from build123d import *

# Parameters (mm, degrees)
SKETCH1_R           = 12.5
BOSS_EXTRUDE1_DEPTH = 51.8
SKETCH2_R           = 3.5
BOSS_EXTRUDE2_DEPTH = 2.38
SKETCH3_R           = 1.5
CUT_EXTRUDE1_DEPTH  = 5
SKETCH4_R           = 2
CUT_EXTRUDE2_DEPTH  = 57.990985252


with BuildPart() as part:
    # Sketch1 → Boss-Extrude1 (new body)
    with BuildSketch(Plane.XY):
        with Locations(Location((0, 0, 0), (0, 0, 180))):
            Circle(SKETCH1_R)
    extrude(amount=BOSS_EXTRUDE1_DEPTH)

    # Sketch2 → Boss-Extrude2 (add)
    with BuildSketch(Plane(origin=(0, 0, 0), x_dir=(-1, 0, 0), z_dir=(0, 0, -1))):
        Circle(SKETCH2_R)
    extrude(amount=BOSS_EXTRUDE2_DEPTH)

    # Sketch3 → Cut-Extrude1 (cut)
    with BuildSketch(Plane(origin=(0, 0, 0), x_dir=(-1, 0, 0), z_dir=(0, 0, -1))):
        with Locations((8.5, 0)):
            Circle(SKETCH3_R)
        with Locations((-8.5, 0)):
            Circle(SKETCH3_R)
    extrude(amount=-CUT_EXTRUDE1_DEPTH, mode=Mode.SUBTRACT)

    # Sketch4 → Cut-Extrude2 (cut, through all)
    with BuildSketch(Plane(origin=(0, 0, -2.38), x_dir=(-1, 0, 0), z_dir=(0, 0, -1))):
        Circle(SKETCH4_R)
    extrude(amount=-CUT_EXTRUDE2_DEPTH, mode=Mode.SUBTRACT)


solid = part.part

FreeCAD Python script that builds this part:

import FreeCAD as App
import Part
import Sketcher
Q = App.Units.Quantity

doc = App.newDocument("Part")
body = doc.addObject("PartDesign::Body", "Body")

sketch1 = body.newObject("Sketcher::SketchObject", "Sketch")
sketch1.AttachmentSupport = (doc.getObject("XY_Plane"), [""])
sketch1.MapMode = "FlatFace"
sketch1.addGeometry(Part.Circle(App.Vector(0, 0, 0), App.Vector(0, 0, 1), 12), False)
sketch1.addConstraint([
    Sketcher.Constraint("Coincident", 0, 3, -1, 1),
    Sketcher.Constraint("Diameter", 0, Q("25 mm")),
])
pad1 = body.newObject("PartDesign::Pad", "Pad")
pad1.Profile = sketch1
pad1.Length = 51.8

sketch2 = body.newObject("Sketcher::SketchObject", "Sketch001")
sketch2.AttachmentSupport = (doc.getObject("XY_Plane"), [""])
sketch2.MapMode = "FlatFace"
sketch2.addGeometry(Part.Circle(App.Vector(0, 0, 0), App.Vector(0, 0, 1), 3.5), False)
sketch2.addConstraint([
    Sketcher.Constraint("Coincident", 0, 3, -1, 1),
    Sketcher.Constraint("Diameter", 0, Q("7 mm")),
])
pad2 = body.newObject("PartDesign::Pad", "Pad001")
pad2.Profile = sketch2
pad2.Length = 2.38
pad2.Reversed = True

sketch3 = body.newObject("Sketcher::SketchObject", "Sketch002")
sketch3.AttachmentSupport = (doc.getObject("XY_Plane"), [""])
sketch3.MapMode = "FlatFace"
sketch3.addGeometry([
    Part.Circle(App.Vector(-8.5, 0, 0), App.Vector(0, 0, 1), 1.5),
    Part.Circle(App.Vector(8.5, 0, 0), App.Vector(0, 0, 1), 1.5),
], False)
sketch3.addConstraint([
    Sketcher.Constraint("Equal", 0, 1),
    Sketcher.Constraint("Symmetric", 0, 3, 1, 3, -1, 1),
    Sketcher.Constraint("PointOnObject", 0, 3, -1),
    Sketcher.Constraint("Diameter", 0, Q("3 mm")),
    Sketcher.Constraint("DistanceX", 0, 3, 1, 3, Q("17 mm")),
])
pocket1 = body.newObject("PartDesign::Pocket", "Pocket")
pocket1.Profile = sketch3
pocket1.Length = 5
pocket1.Reversed = True

sketch4 = body.newObject("Sketcher::SketchObject", "Sketch003")
sketch4.AttachmentSupport = (doc.getObject("XY_Plane"), [""])
sketch4.MapMode = "FlatFace"
sketch4.AttachmentOffset = App.Placement(App.Vector(0, 0, -2.38), App.Rotation())
sketch4.addGeometry(Part.Circle(App.Vector(0, 0, 0), App.Vector(0, 0, 1), 2), False)
sketch4.addConstraint([
    Sketcher.Constraint("Coincident", 0, 3, -1, 1),
    Sketcher.Constraint("Diameter", 0, Q("4 mm")),
])
pocket2 = body.newObject("PartDesign::Pocket", "Pocket001")
pocket2.Profile = sketch4
pocket2.Type = "ThroughAll"
pocket2.Reversed = True

doc.recompute()
